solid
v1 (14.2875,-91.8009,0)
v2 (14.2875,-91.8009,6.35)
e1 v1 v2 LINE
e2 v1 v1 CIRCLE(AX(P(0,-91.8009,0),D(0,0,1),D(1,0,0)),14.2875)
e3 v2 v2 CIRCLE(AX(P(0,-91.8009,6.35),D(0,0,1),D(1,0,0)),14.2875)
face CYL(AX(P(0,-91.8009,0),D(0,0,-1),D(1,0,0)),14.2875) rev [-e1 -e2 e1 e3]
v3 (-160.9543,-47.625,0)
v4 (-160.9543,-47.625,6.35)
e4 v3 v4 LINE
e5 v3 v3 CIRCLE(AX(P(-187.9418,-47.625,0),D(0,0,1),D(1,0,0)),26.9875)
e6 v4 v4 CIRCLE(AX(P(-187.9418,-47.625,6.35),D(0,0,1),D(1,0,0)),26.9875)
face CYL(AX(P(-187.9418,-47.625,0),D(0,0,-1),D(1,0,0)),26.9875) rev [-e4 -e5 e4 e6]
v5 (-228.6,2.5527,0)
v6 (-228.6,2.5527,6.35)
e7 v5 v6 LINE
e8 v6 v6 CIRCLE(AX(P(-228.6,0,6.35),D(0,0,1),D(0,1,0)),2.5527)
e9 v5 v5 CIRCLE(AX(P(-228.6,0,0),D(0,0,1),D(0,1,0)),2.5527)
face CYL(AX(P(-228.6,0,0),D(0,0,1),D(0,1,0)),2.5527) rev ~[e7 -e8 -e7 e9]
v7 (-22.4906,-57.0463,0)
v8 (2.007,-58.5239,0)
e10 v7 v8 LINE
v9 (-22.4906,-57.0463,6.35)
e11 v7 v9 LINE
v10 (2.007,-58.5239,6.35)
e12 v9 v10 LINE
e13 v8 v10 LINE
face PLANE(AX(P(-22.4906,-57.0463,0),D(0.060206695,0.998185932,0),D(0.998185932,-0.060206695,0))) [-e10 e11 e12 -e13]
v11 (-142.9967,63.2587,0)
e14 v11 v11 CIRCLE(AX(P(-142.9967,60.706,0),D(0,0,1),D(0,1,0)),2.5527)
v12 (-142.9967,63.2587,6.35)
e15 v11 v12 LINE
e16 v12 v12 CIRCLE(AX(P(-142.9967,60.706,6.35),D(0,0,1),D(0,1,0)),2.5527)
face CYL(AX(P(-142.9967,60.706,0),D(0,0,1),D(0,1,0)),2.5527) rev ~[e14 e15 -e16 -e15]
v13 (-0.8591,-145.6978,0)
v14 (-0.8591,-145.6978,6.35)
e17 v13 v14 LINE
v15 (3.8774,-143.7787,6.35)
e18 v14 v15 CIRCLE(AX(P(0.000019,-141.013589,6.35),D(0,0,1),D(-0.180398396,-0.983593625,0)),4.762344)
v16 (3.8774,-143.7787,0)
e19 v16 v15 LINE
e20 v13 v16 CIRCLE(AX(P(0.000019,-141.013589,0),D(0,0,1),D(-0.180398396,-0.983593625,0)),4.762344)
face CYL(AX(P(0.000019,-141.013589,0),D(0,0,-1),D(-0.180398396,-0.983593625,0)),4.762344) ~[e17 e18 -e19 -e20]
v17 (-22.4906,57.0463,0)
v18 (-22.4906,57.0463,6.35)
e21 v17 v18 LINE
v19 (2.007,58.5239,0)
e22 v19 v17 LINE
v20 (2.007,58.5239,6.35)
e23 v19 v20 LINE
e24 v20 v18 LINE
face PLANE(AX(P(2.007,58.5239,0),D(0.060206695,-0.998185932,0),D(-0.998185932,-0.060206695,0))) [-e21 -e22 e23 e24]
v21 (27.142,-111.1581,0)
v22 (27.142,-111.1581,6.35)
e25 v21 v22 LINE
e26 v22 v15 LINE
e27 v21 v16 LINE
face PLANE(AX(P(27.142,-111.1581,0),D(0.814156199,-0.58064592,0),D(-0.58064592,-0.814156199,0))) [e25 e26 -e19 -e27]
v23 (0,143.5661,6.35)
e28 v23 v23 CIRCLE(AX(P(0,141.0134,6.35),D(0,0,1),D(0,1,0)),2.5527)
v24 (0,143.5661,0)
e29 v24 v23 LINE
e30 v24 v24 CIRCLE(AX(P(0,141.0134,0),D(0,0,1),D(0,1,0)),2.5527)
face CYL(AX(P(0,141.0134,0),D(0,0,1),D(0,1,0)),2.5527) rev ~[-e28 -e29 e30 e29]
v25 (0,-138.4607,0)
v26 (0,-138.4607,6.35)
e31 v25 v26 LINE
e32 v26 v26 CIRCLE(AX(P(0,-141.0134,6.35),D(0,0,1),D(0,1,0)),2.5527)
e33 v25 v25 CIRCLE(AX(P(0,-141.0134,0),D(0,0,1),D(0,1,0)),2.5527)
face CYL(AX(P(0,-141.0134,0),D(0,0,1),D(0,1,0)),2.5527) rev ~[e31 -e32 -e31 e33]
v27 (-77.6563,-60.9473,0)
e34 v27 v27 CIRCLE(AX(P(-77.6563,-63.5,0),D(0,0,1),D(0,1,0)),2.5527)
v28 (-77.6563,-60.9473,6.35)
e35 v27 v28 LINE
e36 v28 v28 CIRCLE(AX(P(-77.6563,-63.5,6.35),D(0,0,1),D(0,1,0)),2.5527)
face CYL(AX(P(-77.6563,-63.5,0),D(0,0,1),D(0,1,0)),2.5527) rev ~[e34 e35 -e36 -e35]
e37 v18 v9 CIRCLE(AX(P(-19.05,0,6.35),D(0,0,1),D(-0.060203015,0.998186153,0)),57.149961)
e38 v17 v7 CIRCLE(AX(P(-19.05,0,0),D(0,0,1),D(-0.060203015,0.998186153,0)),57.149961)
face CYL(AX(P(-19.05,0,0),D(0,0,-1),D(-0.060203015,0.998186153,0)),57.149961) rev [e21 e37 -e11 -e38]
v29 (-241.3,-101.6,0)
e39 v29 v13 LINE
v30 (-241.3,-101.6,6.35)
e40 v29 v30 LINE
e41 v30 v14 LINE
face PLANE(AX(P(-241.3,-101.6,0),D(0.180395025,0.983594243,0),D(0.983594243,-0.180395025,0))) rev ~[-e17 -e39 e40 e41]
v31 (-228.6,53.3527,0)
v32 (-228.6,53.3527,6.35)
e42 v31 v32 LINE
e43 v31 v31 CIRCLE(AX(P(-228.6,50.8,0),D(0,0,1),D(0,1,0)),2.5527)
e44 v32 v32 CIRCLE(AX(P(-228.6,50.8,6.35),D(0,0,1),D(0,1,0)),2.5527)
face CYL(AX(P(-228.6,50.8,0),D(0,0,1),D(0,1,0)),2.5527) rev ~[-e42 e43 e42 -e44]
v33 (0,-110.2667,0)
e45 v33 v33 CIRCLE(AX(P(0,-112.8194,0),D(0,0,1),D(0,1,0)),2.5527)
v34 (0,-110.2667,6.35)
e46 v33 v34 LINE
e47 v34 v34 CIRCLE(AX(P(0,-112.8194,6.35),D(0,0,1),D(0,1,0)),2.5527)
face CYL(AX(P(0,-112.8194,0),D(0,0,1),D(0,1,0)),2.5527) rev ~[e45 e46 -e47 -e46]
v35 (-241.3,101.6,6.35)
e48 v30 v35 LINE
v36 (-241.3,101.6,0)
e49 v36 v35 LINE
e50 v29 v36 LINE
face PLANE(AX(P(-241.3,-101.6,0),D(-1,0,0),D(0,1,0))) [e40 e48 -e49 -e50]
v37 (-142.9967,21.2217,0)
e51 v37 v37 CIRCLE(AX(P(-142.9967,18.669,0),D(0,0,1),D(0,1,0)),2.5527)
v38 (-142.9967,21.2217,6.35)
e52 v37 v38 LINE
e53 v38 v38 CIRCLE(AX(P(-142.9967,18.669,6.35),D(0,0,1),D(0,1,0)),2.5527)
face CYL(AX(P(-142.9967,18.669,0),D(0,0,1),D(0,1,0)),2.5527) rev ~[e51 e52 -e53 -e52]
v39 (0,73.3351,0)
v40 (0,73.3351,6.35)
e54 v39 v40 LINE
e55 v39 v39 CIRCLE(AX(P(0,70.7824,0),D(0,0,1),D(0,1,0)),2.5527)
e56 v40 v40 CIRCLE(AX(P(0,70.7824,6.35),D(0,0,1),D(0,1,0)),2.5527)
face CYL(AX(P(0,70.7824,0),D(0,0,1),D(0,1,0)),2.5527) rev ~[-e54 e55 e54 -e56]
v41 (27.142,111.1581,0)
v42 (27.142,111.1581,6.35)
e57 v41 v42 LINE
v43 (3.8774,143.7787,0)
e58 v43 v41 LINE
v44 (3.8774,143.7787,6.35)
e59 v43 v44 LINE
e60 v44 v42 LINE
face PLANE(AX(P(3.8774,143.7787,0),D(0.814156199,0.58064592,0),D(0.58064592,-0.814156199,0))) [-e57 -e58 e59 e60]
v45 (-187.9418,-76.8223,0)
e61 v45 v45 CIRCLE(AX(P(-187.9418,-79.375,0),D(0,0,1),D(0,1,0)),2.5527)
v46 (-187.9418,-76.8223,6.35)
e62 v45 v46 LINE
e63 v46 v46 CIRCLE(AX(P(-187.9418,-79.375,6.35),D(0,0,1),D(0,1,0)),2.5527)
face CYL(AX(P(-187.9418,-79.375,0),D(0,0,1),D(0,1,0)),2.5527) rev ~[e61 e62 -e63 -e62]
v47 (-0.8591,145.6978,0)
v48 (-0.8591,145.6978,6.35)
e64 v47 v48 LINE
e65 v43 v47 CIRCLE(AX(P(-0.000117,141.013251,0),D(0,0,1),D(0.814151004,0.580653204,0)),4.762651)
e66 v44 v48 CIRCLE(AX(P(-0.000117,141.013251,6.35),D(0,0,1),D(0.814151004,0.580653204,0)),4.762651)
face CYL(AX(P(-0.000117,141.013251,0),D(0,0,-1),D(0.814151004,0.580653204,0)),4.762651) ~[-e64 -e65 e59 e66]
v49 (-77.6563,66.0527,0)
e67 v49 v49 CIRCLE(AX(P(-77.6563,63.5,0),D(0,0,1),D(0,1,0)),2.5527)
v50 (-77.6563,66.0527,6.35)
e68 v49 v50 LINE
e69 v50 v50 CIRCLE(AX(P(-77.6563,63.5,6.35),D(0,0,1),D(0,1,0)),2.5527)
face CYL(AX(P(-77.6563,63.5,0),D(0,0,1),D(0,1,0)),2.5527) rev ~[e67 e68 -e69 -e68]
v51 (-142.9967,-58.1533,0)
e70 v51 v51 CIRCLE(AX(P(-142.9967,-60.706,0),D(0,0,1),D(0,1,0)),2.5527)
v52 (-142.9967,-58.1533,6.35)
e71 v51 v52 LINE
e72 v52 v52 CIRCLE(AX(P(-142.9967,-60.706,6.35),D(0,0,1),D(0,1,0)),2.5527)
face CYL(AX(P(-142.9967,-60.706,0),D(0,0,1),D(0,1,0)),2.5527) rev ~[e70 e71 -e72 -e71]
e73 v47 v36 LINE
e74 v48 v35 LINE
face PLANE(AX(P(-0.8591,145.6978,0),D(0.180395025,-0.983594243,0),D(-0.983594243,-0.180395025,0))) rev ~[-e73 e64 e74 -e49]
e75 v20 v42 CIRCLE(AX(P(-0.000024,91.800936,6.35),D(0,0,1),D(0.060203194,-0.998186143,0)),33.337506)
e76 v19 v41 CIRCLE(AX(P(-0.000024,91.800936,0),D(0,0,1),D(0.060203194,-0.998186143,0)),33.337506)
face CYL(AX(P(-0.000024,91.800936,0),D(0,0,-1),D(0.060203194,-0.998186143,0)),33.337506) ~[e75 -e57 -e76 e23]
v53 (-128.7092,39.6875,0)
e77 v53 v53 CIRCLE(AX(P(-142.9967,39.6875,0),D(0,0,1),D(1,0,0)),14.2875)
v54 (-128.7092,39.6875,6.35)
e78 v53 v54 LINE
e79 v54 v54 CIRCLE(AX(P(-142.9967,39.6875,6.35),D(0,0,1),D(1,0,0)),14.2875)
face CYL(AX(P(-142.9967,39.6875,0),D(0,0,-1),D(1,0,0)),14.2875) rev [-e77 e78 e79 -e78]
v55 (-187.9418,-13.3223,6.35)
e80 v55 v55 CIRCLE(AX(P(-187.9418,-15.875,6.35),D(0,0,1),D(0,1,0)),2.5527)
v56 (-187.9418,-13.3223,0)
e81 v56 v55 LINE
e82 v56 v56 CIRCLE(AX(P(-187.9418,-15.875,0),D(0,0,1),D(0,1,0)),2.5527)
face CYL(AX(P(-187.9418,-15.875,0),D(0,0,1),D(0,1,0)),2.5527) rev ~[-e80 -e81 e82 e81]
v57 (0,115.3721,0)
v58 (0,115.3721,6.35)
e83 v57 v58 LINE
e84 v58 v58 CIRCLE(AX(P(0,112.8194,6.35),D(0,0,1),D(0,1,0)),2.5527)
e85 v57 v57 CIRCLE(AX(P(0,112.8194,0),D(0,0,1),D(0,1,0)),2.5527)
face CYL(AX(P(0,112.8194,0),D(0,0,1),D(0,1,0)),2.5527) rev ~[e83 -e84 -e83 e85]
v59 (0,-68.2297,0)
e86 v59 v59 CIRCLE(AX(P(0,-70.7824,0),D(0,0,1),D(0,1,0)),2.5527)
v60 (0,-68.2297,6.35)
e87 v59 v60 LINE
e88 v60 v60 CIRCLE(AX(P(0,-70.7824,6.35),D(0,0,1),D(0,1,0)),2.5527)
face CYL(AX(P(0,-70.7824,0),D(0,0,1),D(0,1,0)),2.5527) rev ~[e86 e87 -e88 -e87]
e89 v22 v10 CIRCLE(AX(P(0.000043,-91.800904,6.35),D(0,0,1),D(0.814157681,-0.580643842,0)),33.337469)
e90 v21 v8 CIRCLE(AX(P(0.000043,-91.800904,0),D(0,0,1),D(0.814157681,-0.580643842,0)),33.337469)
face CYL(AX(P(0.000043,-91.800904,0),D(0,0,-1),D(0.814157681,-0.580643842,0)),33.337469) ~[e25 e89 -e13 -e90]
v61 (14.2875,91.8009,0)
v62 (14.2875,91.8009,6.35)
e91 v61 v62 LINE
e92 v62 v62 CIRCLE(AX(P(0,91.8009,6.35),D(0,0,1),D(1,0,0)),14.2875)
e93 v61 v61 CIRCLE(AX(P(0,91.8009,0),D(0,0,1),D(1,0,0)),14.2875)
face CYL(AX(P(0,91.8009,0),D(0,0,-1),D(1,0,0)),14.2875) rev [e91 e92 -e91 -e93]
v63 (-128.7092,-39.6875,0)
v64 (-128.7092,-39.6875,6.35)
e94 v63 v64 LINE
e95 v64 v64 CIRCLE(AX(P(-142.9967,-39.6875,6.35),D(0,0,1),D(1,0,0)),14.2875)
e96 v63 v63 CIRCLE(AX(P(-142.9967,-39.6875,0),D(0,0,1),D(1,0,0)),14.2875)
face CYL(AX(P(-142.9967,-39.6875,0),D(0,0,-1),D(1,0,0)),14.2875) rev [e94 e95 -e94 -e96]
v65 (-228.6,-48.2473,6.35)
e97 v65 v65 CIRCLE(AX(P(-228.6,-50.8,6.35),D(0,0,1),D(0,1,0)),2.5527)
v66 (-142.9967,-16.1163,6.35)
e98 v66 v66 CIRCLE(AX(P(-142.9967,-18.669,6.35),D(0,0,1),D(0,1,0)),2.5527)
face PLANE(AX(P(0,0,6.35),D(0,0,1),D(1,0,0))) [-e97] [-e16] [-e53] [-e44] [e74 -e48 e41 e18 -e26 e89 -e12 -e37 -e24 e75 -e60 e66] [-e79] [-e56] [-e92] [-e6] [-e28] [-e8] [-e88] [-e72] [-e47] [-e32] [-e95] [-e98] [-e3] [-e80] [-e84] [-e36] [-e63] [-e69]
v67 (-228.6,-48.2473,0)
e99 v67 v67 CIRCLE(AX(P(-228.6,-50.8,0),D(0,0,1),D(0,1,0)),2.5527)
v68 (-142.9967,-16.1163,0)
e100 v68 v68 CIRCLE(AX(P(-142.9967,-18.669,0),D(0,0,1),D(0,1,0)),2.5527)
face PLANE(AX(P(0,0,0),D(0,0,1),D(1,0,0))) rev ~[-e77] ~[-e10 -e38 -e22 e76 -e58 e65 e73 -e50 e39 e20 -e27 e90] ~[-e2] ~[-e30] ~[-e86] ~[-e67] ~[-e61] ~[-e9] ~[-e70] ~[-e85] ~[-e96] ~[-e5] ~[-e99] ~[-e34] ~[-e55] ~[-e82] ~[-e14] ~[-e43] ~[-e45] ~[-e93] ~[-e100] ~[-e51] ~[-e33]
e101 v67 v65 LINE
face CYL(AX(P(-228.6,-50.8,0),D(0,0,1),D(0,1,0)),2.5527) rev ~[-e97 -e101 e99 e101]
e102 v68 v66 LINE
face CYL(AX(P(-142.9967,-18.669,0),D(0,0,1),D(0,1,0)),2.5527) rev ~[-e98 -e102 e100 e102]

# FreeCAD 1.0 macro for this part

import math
import FreeCAD as App
import Part
import Sketcher
Q = App.Units.Quantity

doc = App.newDocument("Part")
body = doc.addObject("PartDesign::Body", "Body")

sketch1 = body.newObject("Sketcher::SketchObject", "Sketch")
sketch1.AttachmentSupport = (doc.getObject("XY_Plane"), [""])
sketch1.MapMode = "FlatFace"
sketch1.addGeometry([
    Part.LineSegment(App.Vector(-241.3, 101.6, 0), App.Vector(-241.3, -101.6, 0)),
    Part.LineSegment(App.Vector(-241.3, -101.6, 0), App.Vector(-0.8591, -145.6978, 0)),
    Part.ArcOfCircle(Part.Circle(App.Vector(0, -141.0134, 0), App.Vector(0, 0, 1), 4.762526), math.radians(-100.392329), math.radians(-35.495861)),
    Part.LineSegment(App.Vector(3.8774, -143.7787, 0), App.Vector(27.142, -111.1581, 0)),
    Part.ArcOfCircle(Part.Circle(App.Vector(0, -91.8009, 0), App.Vector(0, 0, 1), 33.3375), math.radians(-35.495802), math.radians(86.548562)),
    Part.LineSegment(App.Vector(2.007, -58.5239, 0), App.Vector(-22.4906, -57.0463, 0)),
    Part.ArcOfCircle(Part.Circle(App.Vector(-19.05, 0, 0), App.Vector(0, 0, 1), 57.149961), math.radians(93.451466), math.radians(266.548534)),
    Part.LineSegment(App.Vector(-22.4906, 57.0463, 0), App.Vector(2.007, 58.5239, 0)),
    Part.ArcOfCircle(Part.Circle(App.Vector(0, 91.8009, 0), App.Vector(0, 0, 1), 33.3375), math.radians(-86.548562), math.radians(35.495802)),
    Part.LineSegment(App.Vector(27.142, 111.1581, 0), App.Vector(3.8774, 143.7787, 0)),
    Part.ArcOfCircle(Part.Circle(App.Vector(0, 141.0134, 0), App.Vector(0, 0, 1), 4.762469), math.radians(35.495861), math.radians(100.392329)),
    Part.LineSegment(App.Vector(-0.8591, 145.6978, 0), App.Vector(-241.3, 101.6, 0)),
    Part.Circle(App.Vector(-187.9418, -47.625, 0), App.Vector(0, 0, 1), 26.9875),
    Part.Circle(App.Vector(-142.9967, -39.6875, 0), App.Vector(0, 0, 1), 14.2875),
    Part.Circle(App.Vector(0, -91.8009, 0), App.Vector(0, 0, 1), 14.2875),
    Part.Circle(App.Vector(-142.9967, 39.6875, 0), App.Vector(0, 0, 1), 14.2875),
    Part.Circle(App.Vector(0, 91.8009, 0), App.Vector(0, 0, 1), 14.2875),
], False)
sketch1.addConstraint([
    Sketcher.Constraint("Coincident", 0, 2, 1, 1),
    Sketcher.Constraint("Tangent", 1, 2, 2, 1),
    Sketcher.Constraint("Tangent", 2, 2, 3, 1),
    Sketcher.Constraint("Tangent", 3, 2, 4, 1),
    Sketcher.Constraint("Tangent", 4, 2, 5, 1),
    Sketcher.Constraint("Tangent", 5, 2, 6, 2),
    Sketcher.Constraint("Tangent", 6, 1, 7, 1),
    Sketcher.Constraint("Tangent", 7, 2, 8, 1),
    Sketcher.Constraint("Tangent", 8, 2, 9, 1),
    Sketcher.Constraint("Tangent", 9, 2, 10, 1),
    Sketcher.Constraint("Tangent", 10, 2, 11, 1),
    Sketcher.Constraint("Coincident", 11, 2, 0, 1),
    Sketcher.Constraint("Vertical", 0),
    Sketcher.Constraint("Coincident", 14, 3, 4, 3),
    Sketcher.Constraint("Coincident", 16, 3, 8, 3),
    Sketcher.Constraint("Equal", 4, 8),
    Sketcher.Constraint("Equal", 2, 10),
    Sketcher.Constraint("Equal", 13, 14),
    Sketcher.Constraint("Equal", 14, 15),
    Sketcher.Constraint("Equal", 15, 16),
    Sketcher.Constraint("Symmetric", 4, 3, 8, 3, -1, 1),
    Sketcher.Constraint("Symmetric", 2, 3, 10, 3, -1, 1),
    Sketcher.Constraint("Symmetric", 13, 3, 15, 3, -1),
    Sketcher.Constraint("Symmetric", 5, 2, 6, 1, -1),
    Sketcher.Constraint("PointOnObject", 2, 3, -2),
    Sketcher.Constraint("Vertical", 1, 2, 10, 2),
    Sketcher.Constraint("DistanceY", 0, 2, 0, 1, Q("8 in")),
    Sketcher.Constraint("Radius", 6, Q("2.25 in")),
    Sketcher.Constraint("Diameter", 12, Q("2.125 in")),
    Sketcher.Constraint("Diameter", 13, Q("1.125 in")),
    Sketcher.Constraint("Radius", 2, Q("0.1875 in")),
    Sketcher.Constraint("DistanceX", 0, 2, -1, 1, Q("9.5 in")),
    Sketcher.Constraint("DistanceX", 6, 3, -1, 1, Q("0.75 in")),
    Sketcher.Constraint("Radius", 4, Q("1.3125 in")),
    Sketcher.Constraint("DistanceY", 13, 3, 15, 3, Q("3.125 in")),
    Sketcher.Constraint("DistanceY", 0, 2, 12, 3, Q("2.125 in")),
    Sketcher.Constraint("DistanceX", 13, 3, -1, 1, Q("5.6298 in")),
    Sketcher.Constraint("DistanceY", 4, 3, 8, 3, 183.6018),
    Sketcher.Constraint("DistanceY", 2, 3, 4, 3, Q("1.9375 in")),
    Sketcher.Constraint("DistanceX", 12, 3, 13, 3, Q("1.7695 in")),
])
pad1 = body.newObject("PartDesign::Pad", "Pad")
pad1.Profile = sketch1
pad1.Length = Q("0.25 in")

sketch2 = body.newObject("Sketcher::SketchObject", "Sketch001")
sketch2.AttachmentSupport = (doc.getObject("XY_Plane"), [""])
sketch2.MapMode = "FlatFace"
sketch2.addGeometry([
    Part.Circle(App.Vector(-172.8189, -38.8937, 0), App.Vector(0, 0, 1), 2.5527),
    Part.Circle(App.Vector(-187.9418, -30.1625, 0), App.Vector(0, 0, 1), 2.5527),
    Part.Circle(App.Vector(-203.0648, -38.8938, 0), App.Vector(0, 0, 1), 2.5527),
    Part.Circle(App.Vector(-203.0648, -56.3563, 0), App.Vector(0, 0, 1), 2.5527),
    Part.Circle(App.Vector(-187.9418, -65.0875, 0), App.Vector(0, 0, 1), 2.5527),
    Part.Circle(App.Vector(-77.6563, 63.5, 0), App.Vector(0, 0, 1), 2.5527),
    Part.Circle(App.Vector(-77.6563, -63.5, 0), App.Vector(0, 0, 1), 2.5527),
    Part.Circle(App.Vector(0, 112.8194, 0), App.Vector(0, 0, 1), 2.5527),
    Part.Circle(App.Vector(0, 70.7824, 0), App.Vector(0, 0, 1), 2.5527),
    Part.Circle(App.Vector(-142.9967, 60.706, 0), App.Vector(0, 0, 1), 2.5527),
    Part.Circle(App.Vector(-142.9967, 18.669, 0), App.Vector(0, 0, 1), 2.5527),
    Part.Circle(App.Vector(-142.9967, -18.669, 0), App.Vector(0, 0, 1), 2.5527),
    Part.Circle(App.Vector(-142.9967, -60.706, 0), App.Vector(0, 0, 1), 2.5527),
    Part.Circle(App.Vector(0, -70.7824, 0), App.Vector(0, 0, 1), 2.5527),
    Part.Circle(App.Vector(0, -112.8194, 0), App.Vector(0, 0, 1), 2.5527),
    Part.Circle(App.Vector(-228.6, 50.8, 0), App.Vector(0, 0, 1), 2.5527),
    Part.Circle(App.Vector(-228.6, 0, 0), App.Vector(0, 0, 1), 2.5527),
    Part.Circle(App.Vector(-228.6, -50.8, 0), App.Vector(0, 0, 1), 2.5527),
    Part.Circle(App.Vector(-187.9418, -79.375, 0), App.Vector(0, 0, 1), 2.5527),
    Part.Circle(App.Vector(-187.9418, -15.875, 0), App.Vector(0, 0, 1), 2.5527),
    Part.Circle(App.Vector(0, -141.0134, 0), App.Vector(0, 0, 1), 2.5527),
    Part.Circle(App.Vector(0, 141.0134, 0), App.Vector(0, 0, 1), 2.5527),
], False)
sketch2.addConstraint([
    Sketcher.Constraint("Equal", 0, 1),
    Sketcher.Constraint("Equal", 1, 2),
    Sketcher.Constraint("Equal", 2, 3),
    Sketcher.Constraint("Equal", 3, 4),
    Sketcher.Constraint("Equal", 4, 5),
    Sketcher.Constraint("Equal", 5, 6),
    Sketcher.Constraint("Equal", 6, 7),
    Sketcher.Constraint("Equal", 7, 8),
    Sketcher.Constraint("Equal", 8, 9),
    Sketcher.Constraint("Equal", 9, 10),
    Sketcher.Constraint("Equal", 10, 11),
    Sketcher.Constraint("Equal", 11, 12),
    Sketcher.Constraint("Equal", 12, 13),
    Sketcher.Constraint("Equal", 13, 14),
    Sketcher.Constraint("Equal", 14, 15),
    Sketcher.Constraint("Equal", 15, 16),
    Sketcher.Constraint("Equal", 16, 17),
    Sketcher.Constraint("Equal", 17, 18),
    Sketcher.Constraint("Equal", 18, 19),
    Sketcher.Constraint("Equal", 19, 20),
    Sketcher.Constraint("Equal", 20, 21),
    Sketcher.Constraint("Symmetric", 8, 3, 13, 3, -1, 1),
    Sketcher.Constraint("Symmetric", 7, 3, 14, 3, -1, 1),
    Sketcher.Constraint("Symmetric", 20, 3, 21, 3, -1, 1),
    Sketcher.Constraint("Symmetric", 5, 3, 6, 3, -1),
    Sketcher.Constraint("Symmetric", 10, 3, 11, 3, -1),
    Sketcher.Constraint("Symmetric", 9, 3, 12, 3, -1),
    Sketcher.Constraint("Symmetric", 15, 3, 17, 3, -1),
    Sketcher.Constraint("PointOnObject", 7, 3, -2),
    Sketcher.Constraint("PointOnObject", 8, 3, -2),
    Sketcher.Constraint("PointOnObject", 16, 3, -1),
    Sketcher.Constraint("PointOnObject", 20, 3, -2),
    Sketcher.Constraint("Horizontal", 0, 3, 2, 3),
    Sketcher.Constraint("Vertical", 2, 3, 3, 3),
    Sketcher.Constraint("Vertical", 1, 3, 4, 3),
    Sketcher.Constraint("Vertical", 9, 3, 10, 3),
    Sketcher.Constraint("Vertical", 15, 3, 16, 3),
    Sketcher.Constraint("Vertical", 4, 3, 18, 3),
    Sketcher.Constraint("Vertical", 18, 3, 19, 3),
    Sketcher.Constraint("Diameter", 0, Q("0.201 in")),
    Sketcher.Constraint("DistanceX", 15, 3, -1, 1, Q("9 in")),
    Sketcher.Constraint("DistanceY", -1, 1, 15, 3, Q("2 in")),
    Sketcher.Constraint("DistanceY", 6, 3, 5, 3, Q("5 in")),
    Sketcher.Constraint("DistanceY", -1, 1, 9, 3, Q("2.39 in")),
    Sketcher.Constraint("DistanceY", 11, 3, 10, 3, Q("1.47 in")),
    Sketcher.Constraint("DistanceY", 20, 3, 14, 3, Q("1.11 in")),
    Sketcher.Constraint("DistanceY", 0, 3, -1, 1, Q("1.531248 in")),
    Sketcher.Constraint("DistanceY", 1, 3, -1, 1, Q("1.1875 in")),
    Sketcher.Constraint("DistanceY", 3, 3, -1, 1, Q("2.218752 in")),
    Sketcher.Constraint("DistanceY", 4, 3, -1, 1, Q("2.5625 in")),
    Sketcher.Constraint("DistanceY", 18, 3, -1, 1, Q("3.125 in")),
    Sketcher.Constraint("DistanceY", 19, 3, -1, 1, Q("0.625 in")),
    Sketcher.Constraint("DistanceY", 8, 3, 7, 3, Q("1.655 in")),
    Sketcher.Constraint("DistanceX", 0, 3, -1, 1, Q("6.8039 in")),
    Sketcher.Constraint("DistanceY", -1, 1, 7, 3, Q("4.4417 in")),
    Sketcher.Constraint("DistanceX", 9, 3, -1, 1, Q("5.6298 in")),
    Sketcher.Constraint("DistanceX", 1, 3, 0, 3, Q("0.5954 in")),
    Sketcher.Constraint("DistanceX", 2, 3, 1, 3, Q("0.5954 in")),
    Sketcher.Constraint("DistanceX", 5, 3, -1, 1, 77.6563),
])
doc.recompute()
hole = body.newObject("PartDesign::Hole", "Hole")
hole.Profile = sketch2
hole.ThreadType = "None"
hole.Diameter = Q("0.201 in")
hole.DepthType = "ThroughAll"
hole.Reversed = True

doc.recompute()
